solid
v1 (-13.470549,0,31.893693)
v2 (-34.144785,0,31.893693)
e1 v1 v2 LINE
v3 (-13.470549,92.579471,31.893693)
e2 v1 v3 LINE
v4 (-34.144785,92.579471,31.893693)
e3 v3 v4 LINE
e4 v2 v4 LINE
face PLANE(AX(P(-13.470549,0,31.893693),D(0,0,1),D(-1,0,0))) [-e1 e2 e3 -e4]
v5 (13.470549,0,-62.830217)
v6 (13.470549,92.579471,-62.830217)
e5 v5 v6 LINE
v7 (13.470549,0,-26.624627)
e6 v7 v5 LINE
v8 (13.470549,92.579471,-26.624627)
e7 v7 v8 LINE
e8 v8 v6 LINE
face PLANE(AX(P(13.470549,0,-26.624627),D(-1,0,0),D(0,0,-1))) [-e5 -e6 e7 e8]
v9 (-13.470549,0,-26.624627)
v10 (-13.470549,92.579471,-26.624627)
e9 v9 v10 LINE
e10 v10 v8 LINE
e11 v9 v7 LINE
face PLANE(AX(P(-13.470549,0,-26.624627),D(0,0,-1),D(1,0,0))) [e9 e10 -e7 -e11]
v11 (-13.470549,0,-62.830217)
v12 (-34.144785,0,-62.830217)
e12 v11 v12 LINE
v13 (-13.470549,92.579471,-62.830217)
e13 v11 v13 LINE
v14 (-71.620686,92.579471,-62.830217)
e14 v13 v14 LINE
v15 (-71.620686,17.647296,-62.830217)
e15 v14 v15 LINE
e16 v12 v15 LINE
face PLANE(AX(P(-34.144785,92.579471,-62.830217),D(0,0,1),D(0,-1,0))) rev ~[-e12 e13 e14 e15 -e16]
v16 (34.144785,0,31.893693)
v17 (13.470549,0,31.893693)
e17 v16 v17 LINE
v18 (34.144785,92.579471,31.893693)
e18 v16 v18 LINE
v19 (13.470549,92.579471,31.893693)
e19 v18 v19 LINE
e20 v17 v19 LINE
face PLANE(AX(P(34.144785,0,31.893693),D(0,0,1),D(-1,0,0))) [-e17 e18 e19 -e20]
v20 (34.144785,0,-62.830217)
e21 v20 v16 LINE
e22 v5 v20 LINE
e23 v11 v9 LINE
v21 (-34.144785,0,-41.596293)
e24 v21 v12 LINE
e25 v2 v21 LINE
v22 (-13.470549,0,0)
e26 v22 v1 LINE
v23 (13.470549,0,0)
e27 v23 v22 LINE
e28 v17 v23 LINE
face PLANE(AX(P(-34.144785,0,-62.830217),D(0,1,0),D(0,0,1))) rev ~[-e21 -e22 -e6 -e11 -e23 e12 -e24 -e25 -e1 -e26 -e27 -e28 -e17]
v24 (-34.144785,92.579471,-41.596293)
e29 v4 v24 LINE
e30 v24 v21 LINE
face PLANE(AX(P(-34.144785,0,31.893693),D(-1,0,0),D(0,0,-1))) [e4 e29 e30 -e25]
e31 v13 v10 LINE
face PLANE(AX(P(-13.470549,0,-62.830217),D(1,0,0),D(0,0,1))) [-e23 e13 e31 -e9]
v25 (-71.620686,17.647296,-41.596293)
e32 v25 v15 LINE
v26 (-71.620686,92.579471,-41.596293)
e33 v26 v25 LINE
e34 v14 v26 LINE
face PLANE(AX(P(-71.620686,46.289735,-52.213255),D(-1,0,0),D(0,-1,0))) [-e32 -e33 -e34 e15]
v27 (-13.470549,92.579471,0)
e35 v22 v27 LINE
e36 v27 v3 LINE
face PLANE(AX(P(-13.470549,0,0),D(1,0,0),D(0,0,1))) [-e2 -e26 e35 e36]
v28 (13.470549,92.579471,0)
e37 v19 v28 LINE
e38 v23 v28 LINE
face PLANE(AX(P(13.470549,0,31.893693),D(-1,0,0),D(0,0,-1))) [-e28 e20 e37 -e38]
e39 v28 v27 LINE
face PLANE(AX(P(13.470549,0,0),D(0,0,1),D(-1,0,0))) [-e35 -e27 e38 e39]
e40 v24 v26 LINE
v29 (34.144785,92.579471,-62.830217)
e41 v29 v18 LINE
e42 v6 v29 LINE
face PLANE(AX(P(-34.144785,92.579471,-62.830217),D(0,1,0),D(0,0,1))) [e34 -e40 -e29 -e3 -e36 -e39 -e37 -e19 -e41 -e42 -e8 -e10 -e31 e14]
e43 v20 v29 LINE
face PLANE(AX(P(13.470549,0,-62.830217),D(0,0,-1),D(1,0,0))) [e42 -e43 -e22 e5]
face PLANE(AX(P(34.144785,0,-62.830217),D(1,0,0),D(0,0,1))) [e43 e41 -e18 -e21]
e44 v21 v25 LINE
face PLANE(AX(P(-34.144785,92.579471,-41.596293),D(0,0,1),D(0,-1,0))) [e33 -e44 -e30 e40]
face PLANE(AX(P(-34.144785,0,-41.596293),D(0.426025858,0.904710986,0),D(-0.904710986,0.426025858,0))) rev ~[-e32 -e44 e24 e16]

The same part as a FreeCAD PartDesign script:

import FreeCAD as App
import Part
import Sketcher
from FreeCAD import Vector


def add_polygon(sketch, points):
    """Adds a closed chain of lines whose ends are joined by coincident constraints."""
    first, n = sketch.GeometryCount, len(points)
    for a, b in zip(points, points[1:] + points[:1]):
        sketch.addGeometry(Part.LineSegment(App.Vector(*a, 0), App.Vector(*b, 0)), False)
    for i in range(n):
        sketch.addConstraint(Sketcher.Constraint("Coincident", first + i, 2, first + (i + 1) % n, 1))

doc = App.newDocument("Part")
body = doc.addObject("PartDesign::Body", "Body")

# Sketch on XZ plane
sketch1 = body.newObject("Sketcher::SketchObject", "Sketch")
sketch1.AttachmentSupport = (doc.getObject("XZ_Plane"), [""])
sketch1.MapMode = "FlatFace"
add_polygon(sketch1, [(13, 32), (13, 0), (-13, 0), (-13, 32), (-34, 32), (-34, -63), (-13, -63), (-13, -27), (13, -27), (13, -63), (34, -63), (34, 32)])  # lines 0-11
sketch1.addConstraint(Sketcher.Constraint("Vertical", 0))
sketch1.addConstraint(Sketcher.Constraint("Horizontal", 1))
sketch1.addConstraint(Sketcher.Constraint("Vertical", 2))
sketch1.addConstraint(Sketcher.Constraint("Horizontal", 3))
sketch1.addConstraint(Sketcher.Constraint("Vertical", 4))
sketch1.addConstraint(Sketcher.Constraint("Horizontal", 5))
sketch1.addConstraint(Sketcher.Constraint("Vertical", 6))
sketch1.addConstraint(Sketcher.Constraint("Horizontal", 7))
sketch1.addConstraint(Sketcher.Constraint("Vertical", 8))
sketch1.addConstraint(Sketcher.Constraint("Horizontal", 9))
sketch1.addConstraint(Sketcher.Constraint("Vertical", 10))
sketch1.addConstraint(Sketcher.Constraint("Horizontal", 11))
sketch1.addConstraint(Sketcher.Constraint("Symmetric", 0, 2, 1, 2, -1, 1))
sketch1.addConstraint(Sketcher.Constraint("Symmetric", 5, 2, 8, 2, -2))
sketch1.addConstraint(Sketcher.Constraint("Symmetric", 3, 2, 10, 2, -2))
sketch1.addConstraint(Sketcher.Constraint("Vertical", 2, 2, 5, 2))
sketch1.addConstraint(Sketcher.Constraint("DistanceX", 1, 2, 1, 1, 26.941098))
sketch1.addConstraint(Sketcher.Constraint("DistanceY", 4, 2, 4, 1, 94.72391))
sketch1.addConstraint(Sketcher.Constraint("DistanceY", 6, 1, 6, 2, 36.20559))
sketch1.addConstraint(Sketcher.Constraint("DistanceX", 3, 2, 3, 1, 20.674236))
sketch1.addConstraint(Sketcher.Constraint("DistanceY", 0, 2, 0, 1, 31.893693))
pad1 = body.newObject("PartDesign::Pad", "Pad")
pad1.Profile = sketch1
pad1.Length = 92.579471
pad1.Reversed = True

# Sketch on YZ plane
sketch2 = body.newObject("Sketcher::SketchObject", "Sketch001")
sketch2.AttachmentSupport = (doc.getObject("YZ_Plane"), [""])
sketch2.MapMode = "FlatFace"
sketch2.AttachmentOffset = App.Placement(Vector(0, 0, -34.144785), App.Rotation())
add_polygon(sketch2, [(93, -42), (93, -63), (0, -63), (0, -42)])  # lines 0-3
sketch2.addConstraint(Sketcher.Constraint("Vertical", 0))
sketch2.addConstraint(Sketcher.Constraint("Horizontal", 1))
sketch2.addConstraint(Sketcher.Constraint("Vertical", 2))
sketch2.addConstraint(Sketcher.Constraint("Horizontal", 3))
sketch2.addConstraint(Sketcher.Constraint("PointOnObject", 1, 2, -2))
sketch2.addConstraint(Sketcher.Constraint("DistanceX", 1, 2, 1, 1, 92.579471))
sketch2.addConstraint(Sketcher.Constraint("DistanceY", 0, 2, 0, 1, 21.233924))
sketch2.addConstraint(Sketcher.Constraint("DistanceY", 0, 2, -1, 1, 62.830217))
pad2 = body.newObject("PartDesign::Pad", "Pad001")
pad2.Profile = sketch2
pad2.Length = 37.475901
pad2.Reversed = True

# Sketch on XY plane
sketch3 = body.newObject("Sketcher::SketchObject", "Sketch002")
sketch3.AttachmentSupport = (doc.getObject("XY_Plane"), [""])
sketch3.MapMode = "FlatFace"
sketch3.AttachmentOffset = App.Placement(Vector(0, 0, -41.596293), App.Rotation())
add_polygon(sketch3, [(-72, 0), (-34, 0), (-72, 18)])  # lines 0-2
sketch3.addConstraint(Sketcher.Constraint("Horizontal", 0))
sketch3.addConstraint(Sketcher.Constraint("Vertical", 2))
sketch3.addConstraint(Sketcher.Constraint("PointOnObject", 0, 2, -1))
sketch3.addConstraint(Sketcher.Constraint("DistanceX", 0, 1, 0, 2, 37.475901))
sketch3.addConstraint(Sketcher.Constraint("DistanceY", 2, 2, 2, 1, 17.647296))
sketch3.addConstraint(Sketcher.Constraint("DistanceX", 0, 2, -1, 1, 34.144785))
pocket1 = body.newObject("PartDesign::Pocket", "Pocket")
pocket1.Profile = sketch3
pocket1.Length = 116.451865

doc.recompute()
